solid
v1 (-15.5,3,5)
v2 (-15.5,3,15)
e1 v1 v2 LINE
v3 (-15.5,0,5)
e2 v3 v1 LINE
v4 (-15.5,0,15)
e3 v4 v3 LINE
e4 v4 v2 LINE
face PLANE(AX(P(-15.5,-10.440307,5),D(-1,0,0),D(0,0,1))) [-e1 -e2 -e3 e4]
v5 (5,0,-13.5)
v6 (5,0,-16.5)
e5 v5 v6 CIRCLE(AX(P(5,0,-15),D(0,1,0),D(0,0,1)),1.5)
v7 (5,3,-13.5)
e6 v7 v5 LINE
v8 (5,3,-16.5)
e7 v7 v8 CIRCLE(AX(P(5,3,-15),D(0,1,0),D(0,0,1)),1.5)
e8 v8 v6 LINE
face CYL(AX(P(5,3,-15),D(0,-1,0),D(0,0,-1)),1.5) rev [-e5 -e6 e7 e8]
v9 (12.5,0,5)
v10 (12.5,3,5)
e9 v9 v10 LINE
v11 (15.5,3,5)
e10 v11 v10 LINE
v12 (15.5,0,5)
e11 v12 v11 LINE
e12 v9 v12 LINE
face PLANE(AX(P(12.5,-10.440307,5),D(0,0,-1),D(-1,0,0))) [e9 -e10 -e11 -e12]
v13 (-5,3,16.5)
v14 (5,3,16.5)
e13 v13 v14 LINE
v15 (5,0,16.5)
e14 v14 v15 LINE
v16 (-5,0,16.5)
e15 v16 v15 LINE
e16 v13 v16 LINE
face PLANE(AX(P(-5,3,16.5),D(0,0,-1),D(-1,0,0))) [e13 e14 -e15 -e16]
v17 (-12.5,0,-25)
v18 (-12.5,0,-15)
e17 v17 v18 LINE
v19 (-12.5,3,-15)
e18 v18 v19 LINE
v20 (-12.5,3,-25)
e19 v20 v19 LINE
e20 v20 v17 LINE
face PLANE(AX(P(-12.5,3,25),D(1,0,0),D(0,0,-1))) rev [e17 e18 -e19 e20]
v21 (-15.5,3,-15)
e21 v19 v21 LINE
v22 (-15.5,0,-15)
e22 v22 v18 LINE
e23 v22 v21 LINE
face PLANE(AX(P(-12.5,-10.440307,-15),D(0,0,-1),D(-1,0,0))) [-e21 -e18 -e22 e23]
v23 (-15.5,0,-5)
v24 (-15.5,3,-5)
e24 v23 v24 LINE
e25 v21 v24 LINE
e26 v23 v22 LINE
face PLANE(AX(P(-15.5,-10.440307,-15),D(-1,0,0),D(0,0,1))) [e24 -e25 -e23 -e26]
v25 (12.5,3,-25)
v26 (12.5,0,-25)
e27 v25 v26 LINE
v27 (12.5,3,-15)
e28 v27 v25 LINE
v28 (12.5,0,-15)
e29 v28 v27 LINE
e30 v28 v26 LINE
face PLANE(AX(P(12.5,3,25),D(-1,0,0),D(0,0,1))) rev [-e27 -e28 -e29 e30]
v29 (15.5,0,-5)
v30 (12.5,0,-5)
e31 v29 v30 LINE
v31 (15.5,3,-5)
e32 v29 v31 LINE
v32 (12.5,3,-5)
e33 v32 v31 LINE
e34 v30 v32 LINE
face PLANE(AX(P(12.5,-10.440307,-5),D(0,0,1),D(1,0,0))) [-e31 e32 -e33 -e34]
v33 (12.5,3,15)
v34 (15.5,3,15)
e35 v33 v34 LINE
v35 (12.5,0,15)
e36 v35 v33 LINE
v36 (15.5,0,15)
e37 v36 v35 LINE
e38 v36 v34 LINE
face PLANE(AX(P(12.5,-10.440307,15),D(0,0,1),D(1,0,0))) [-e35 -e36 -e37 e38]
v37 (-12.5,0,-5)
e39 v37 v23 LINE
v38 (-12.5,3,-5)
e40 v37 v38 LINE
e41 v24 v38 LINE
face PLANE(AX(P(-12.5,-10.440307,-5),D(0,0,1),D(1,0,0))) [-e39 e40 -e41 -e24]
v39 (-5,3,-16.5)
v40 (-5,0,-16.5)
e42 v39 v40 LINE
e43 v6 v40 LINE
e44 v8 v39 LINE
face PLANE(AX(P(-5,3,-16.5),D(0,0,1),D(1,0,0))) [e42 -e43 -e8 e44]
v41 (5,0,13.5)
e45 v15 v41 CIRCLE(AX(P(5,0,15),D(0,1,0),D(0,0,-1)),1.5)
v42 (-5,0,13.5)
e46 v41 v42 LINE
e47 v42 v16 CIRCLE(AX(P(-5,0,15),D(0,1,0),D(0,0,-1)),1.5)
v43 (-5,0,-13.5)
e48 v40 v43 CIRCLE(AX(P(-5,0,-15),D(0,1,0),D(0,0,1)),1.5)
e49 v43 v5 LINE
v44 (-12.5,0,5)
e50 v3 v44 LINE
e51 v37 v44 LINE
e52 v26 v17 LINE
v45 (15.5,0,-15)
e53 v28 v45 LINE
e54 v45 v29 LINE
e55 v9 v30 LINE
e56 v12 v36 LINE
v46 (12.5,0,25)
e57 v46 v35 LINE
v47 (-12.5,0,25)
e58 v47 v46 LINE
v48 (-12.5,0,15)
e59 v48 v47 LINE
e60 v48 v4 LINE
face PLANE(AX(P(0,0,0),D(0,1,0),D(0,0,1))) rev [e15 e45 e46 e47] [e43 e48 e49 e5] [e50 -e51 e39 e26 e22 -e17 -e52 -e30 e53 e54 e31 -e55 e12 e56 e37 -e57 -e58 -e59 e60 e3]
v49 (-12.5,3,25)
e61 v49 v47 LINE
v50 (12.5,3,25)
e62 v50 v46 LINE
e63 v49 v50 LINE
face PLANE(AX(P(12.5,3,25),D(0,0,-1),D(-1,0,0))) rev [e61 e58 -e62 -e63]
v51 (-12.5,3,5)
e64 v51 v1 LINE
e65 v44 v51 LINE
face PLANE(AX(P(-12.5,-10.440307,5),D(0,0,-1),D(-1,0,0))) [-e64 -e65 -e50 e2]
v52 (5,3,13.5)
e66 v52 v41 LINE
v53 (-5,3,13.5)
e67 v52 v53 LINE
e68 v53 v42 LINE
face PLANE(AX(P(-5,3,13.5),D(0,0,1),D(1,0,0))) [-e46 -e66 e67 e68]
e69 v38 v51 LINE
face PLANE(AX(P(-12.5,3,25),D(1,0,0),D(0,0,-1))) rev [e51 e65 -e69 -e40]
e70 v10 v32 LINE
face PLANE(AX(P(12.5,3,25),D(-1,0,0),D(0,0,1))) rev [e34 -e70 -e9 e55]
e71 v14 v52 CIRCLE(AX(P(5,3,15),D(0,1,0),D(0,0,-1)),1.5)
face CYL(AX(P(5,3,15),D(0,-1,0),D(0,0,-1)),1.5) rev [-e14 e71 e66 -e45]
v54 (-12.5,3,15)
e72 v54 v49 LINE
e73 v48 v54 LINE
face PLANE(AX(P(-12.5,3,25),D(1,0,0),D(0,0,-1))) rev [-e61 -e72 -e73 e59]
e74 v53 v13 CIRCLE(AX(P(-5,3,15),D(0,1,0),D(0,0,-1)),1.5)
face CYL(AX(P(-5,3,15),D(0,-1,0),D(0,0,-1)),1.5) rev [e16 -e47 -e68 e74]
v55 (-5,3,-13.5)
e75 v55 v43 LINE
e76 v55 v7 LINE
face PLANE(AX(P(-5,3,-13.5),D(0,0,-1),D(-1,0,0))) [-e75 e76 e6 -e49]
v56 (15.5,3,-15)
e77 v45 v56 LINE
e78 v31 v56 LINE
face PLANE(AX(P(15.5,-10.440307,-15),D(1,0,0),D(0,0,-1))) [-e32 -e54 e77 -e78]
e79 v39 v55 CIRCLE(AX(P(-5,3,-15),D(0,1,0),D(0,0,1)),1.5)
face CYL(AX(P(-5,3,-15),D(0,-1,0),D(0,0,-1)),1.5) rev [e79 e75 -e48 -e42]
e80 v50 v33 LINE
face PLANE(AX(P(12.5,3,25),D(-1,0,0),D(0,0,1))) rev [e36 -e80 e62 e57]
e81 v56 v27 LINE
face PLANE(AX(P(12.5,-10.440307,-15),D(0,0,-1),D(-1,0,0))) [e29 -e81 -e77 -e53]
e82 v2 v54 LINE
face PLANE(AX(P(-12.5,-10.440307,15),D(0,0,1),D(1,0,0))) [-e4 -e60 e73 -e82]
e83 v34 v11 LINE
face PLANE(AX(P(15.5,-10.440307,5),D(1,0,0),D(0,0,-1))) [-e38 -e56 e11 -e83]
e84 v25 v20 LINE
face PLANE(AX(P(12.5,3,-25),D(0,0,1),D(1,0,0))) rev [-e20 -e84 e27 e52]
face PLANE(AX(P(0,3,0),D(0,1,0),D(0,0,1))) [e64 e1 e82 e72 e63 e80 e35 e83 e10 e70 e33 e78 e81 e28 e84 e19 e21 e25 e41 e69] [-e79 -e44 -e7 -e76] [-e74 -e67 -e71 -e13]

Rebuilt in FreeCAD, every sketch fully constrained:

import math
import FreeCAD as App
import Part
import Sketcher

doc = App.newDocument("Part")
body = doc.addObject("PartDesign::Body", "Body")

# Sketch on XZ plane
sketch1 = body.newObject("Sketcher::SketchObject", "Sketch")
sketch1.AttachmentSupport = (doc.getObject("XZ_Plane"), [""])
sketch1.MapMode = "FlatFace"
sketch1.addGeometry(Part.LineSegment(App.Vector(-12.5, -25, 0), App.Vector(-12.5, 25, 0)), False)
sketch1.addGeometry(Part.LineSegment(App.Vector(-12.5, 25, 0), App.Vector(12.5, 25, 0)), False)
sketch1.addGeometry(Part.LineSegment(App.Vector(12.5, 25, 0), App.Vector(12.5, -25, 0)), False)
sketch1.addGeometry(Part.LineSegment(App.Vector(12.5, -25, 0), App.Vector(-12.5, -25, 0)), False)
sketch1.addGeometry(Part.LineSegment(App.Vector(5, 16.5, 0), App.Vector(-5, 16.5, 0)), False)
sketch1.addGeometry(Part.ArcOfCircle(Part.Circle(App.Vector(-5, 15, 0), App.Vector(0, 0, 1), 1.5), math.radians(90), math.radians(270)), False)
sketch1.addGeometry(Part.LineSegment(App.Vector(-5, 13.5, 0), App.Vector(5, 13.5, 0)), False)
sketch1.addGeometry(Part.ArcOfCircle(Part.Circle(App.Vector(5, 15, 0), App.Vector(0, 0, 1), 1.5), math.radians(-90), math.radians(90)), False)
sketch1.addGeometry(Part.ArcOfCircle(Part.Circle(App.Vector(-5, -15, 0), App.Vector(0, 0, 1), 1.5), math.radians(90), math.radians(270)), False)
sketch1.addGeometry(Part.LineSegment(App.Vector(-5, -16.5, 0), App.Vector(5, -16.5, 0)), False)
sketch1.addGeometry(Part.ArcOfCircle(Part.Circle(App.Vector(5, -15, 0), App.Vector(0, 0, 1), 1.5), math.radians(-90), math.radians(90)), False)
sketch1.addGeometry(Part.LineSegment(App.Vector(5, -13.5, 0), App.Vector(-5, -13.5, 0)), False)
sketch1.addConstraint(Sketcher.Constraint("Coincident", 0, 2, 1, 1))
sketch1.addConstraint(Sketcher.Constraint("Coincident", 1, 2, 2, 1))
sketch1.addConstraint(Sketcher.Constraint("Coincident", 2, 2, 3, 1))
sketch1.addConstraint(Sketcher.Constraint("Coincident", 3, 2, 0, 1))
sketch1.addConstraint(Sketcher.Constraint("Tangent", 4, 2, 5, 1))
sketch1.addConstraint(Sketcher.Constraint("Tangent", 5, 2, 6, 1))
sketch1.addConstraint(Sketcher.Constraint("Tangent", 6, 2, 7, 1))
sketch1.addConstraint(Sketcher.Constraint("Tangent", 7, 2, 4, 1))
sketch1.addConstraint(Sketcher.Constraint("Tangent", 8, 2, 9, 1))
sketch1.addConstraint(Sketcher.Constraint("Tangent", 9, 2, 10, 1))
sketch1.addConstraint(Sketcher.Constraint("Tangent", 10, 2, 11, 1))
sketch1.addConstraint(Sketcher.Constraint("Tangent", 11, 2, 8, 1))
sketch1.addConstraint(Sketcher.Constraint("Vertical", 0))
sketch1.addConstraint(Sketcher.Constraint("Horizontal", 1))
sketch1.addConstraint(Sketcher.Constraint("Vertical", 2))
sketch1.addConstraint(Sketcher.Constraint("Horizontal", 3))
sketch1.addConstraint(Sketcher.Constraint("Horizontal", 4))
sketch1.addConstraint(Sketcher.Constraint("Horizontal", 6))
sketch1.addConstraint(Sketcher.Constraint("Horizontal", 9))
sketch1.addConstraint(Sketcher.Constraint("Horizontal", 11))
sketch1.addConstraint(Sketcher.Constraint("Equal", 7, 8))
sketch1.addConstraint(Sketcher.Constraint("Symmetric", 7, 3, 8, 3, -1, 1))
sketch1.addConstraint(Sketcher.Constraint("Symmetric", 0, 2, 2, 2, -1, 1))
sketch1.addConstraint(Sketcher.Constraint("Vertical", 5, 3, 8, 3))
sketch1.addConstraint(Sketcher.Constraint("Vertical", 7, 3, 10, 3))
sketch1.addConstraint(Sketcher.Constraint("Radius", 5, 1.5))
sketch1.addConstraint(Sketcher.Constraint("DistanceX", 1, 1, 1, 2, 25.0))
sketch1.addConstraint(Sketcher.Constraint("DistanceX", 4, 2, 4, 1, 10.0))
sketch1.addConstraint(Sketcher.Constraint("DistanceY", 0, 1, 0, 2, 50.0))
sketch1.addConstraint(Sketcher.Constraint("DistanceY", -1, 1, 5, 3, 15.0))
pad1 = body.newObject("PartDesign::Pad", "Pad")
pad1.Profile = sketch1
pad1.Length = 3
pad1.Reversed = True

# Sketch on XZ plane
sketch2 = body.newObject("Sketcher::SketchObject", "Sketch001")
sketch2.AttachmentSupport = (doc.getObject("XZ_Plane"), [""])
sketch2.MapMode = "FlatFace"
sketch2.AttachmentOffset = App.Placement(App.Vector(0, 0, -3), App.Rotation())
sketch2.addGeometry(Part.LineSegment(App.Vector(12.5, -15, 0), App.Vector(12.5, -5, 0)), False)
sketch2.addGeometry(Part.LineSegment(App.Vector(12.5, -5, 0), App.Vector(15.5, -5, 0)), False)
sketch2.addGeometry(Part.LineSegment(App.Vector(15.5, -5, 0), App.Vector(15.5, -15, 0)), False)
sketch2.addGeometry(Part.LineSegment(App.Vector(15.5, -15, 0), App.Vector(12.5, -15, 0)), False)
sketch2.addGeometry(Part.LineSegment(App.Vector(12.5, 5, 0), App.Vector(12.5, 15, 0)), False)
sketch2.addGeometry(Part.LineSegment(App.Vector(12.5, 15, 0), App.Vector(15.5, 15, 0)), False)
sketch2.addGeometry(Part.LineSegment(App.Vector(15.5, 15, 0), App.Vector(15.5, 5, 0)), False)
sketch2.addGeometry(Part.LineSegment(App.Vector(15.5, 5, 0), App.Vector(12.5, 5, 0)), False)
sketch2.addGeometry(Part.LineSegment(App.Vector(-15.5, 5, 0), App.Vector(-15.5, 15, 0)), False)
sketch2.addGeometry(Part.LineSegment(App.Vector(-15.5, 15, 0), App.Vector(-12.5, 15, 0)), False)
sketch2.addGeometry(Part.LineSegment(App.Vector(-12.5, 15, 0), App.Vector(-12.5, 5, 0)), False)
sketch2.addGeometry(Part.LineSegment(App.Vector(-12.5, 5, 0), App.Vector(-15.5, 5, 0)), False)
sketch2.addGeometry(Part.LineSegment(App.Vector(-15.5, -15, 0), App.Vector(-15.5, -5, 0)), False)
sketch2.addGeometry(Part.LineSegment(App.Vector(-15.5, -5, 0), App.Vector(-12.5, -5, 0)), False)
sketch2.addGeometry(Part.LineSegment(App.Vector(-12.5, -5, 0), App.Vector(-12.5, -15, 0)), False)
sketch2.addGeometry(Part.LineSegment(App.Vector(-12.5, -15, 0), App.Vector(-15.5, -15, 0)), False)
sketch2.addConstraint(Sketcher.Constraint("Coincident", 0, 2, 1, 1))
sketch2.addConstraint(Sketcher.Constraint("Coincident", 1, 2, 2, 1))
sketch2.addConstraint(Sketcher.Constraint("Coincident", 2, 2, 3, 1))
sketch2.addConstraint(Sketcher.Constraint("Coincident", 3, 2, 0, 1))
sketch2.addConstraint(Sketcher.Constraint("Coincident", 4, 2, 5, 1))
sketch2.addConstraint(Sketcher.Constraint("Coincident", 5, 2, 6, 1))
sketch2.addConstraint(Sketcher.Constraint("Coincident", 6, 2, 7, 1))
sketch2.addConstraint(Sketcher.Constraint("Coincident", 7, 2, 4, 1))
sketch2.addConstraint(Sketcher.Constraint("Coincident", 8, 2, 9, 1))
sketch2.addConstraint(Sketcher.Constraint("Coincident", 9, 2, 10, 1))
sketch2.addConstraint(Sketcher.Constraint("Coincident", 10, 2, 11, 1))
sketch2.addConstraint(Sketcher.Constraint("Coincident", 11, 2, 8, 1))
sketch2.addConstraint(Sketcher.Constraint("Coincident", 12, 2, 13, 1))
sketch2.addConstraint(Sketcher.Constraint("Coincident", 13, 2, 14, 1))
sketch2.addConstraint(Sketcher.Constraint("Coincident", 14, 2, 15, 1))
sketch2.addConstraint(Sketcher.Constraint("Coincident", 15, 2, 12, 1))
sketch2.addConstraint(Sketcher.Constraint("Vertical", 0))
sketch2.addConstraint(Sketcher.Constraint("Horizontal", 1))
sketch2.addConstraint(Sketcher.Constraint("Vertical", 2))
sketch2.addConstraint(Sketcher.Constraint("Horizontal", 3))
sketch2.addConstraint(Sketcher.Constraint("Vertical", 4))
sketch2.addConstraint(Sketcher.Constraint("Horizontal", 5))
sketch2.addConstraint(Sketcher.Constraint("Vertical", 6))
sketch2.addConstraint(Sketcher.Constraint("Horizontal", 7))
sketch2.addConstraint(Sketcher.Constraint("Vertical", 8))
sketch2.addConstraint(Sketcher.Constraint("Horizontal", 9))
sketch2.addConstraint(Sketcher.Constraint("Vertical", 10))
sketch2.addConstraint(Sketcher.Constraint("Horizontal", 11))
sketch2.addConstraint(Sketcher.Constraint("Vertical", 12))
sketch2.addConstraint(Sketcher.Constraint("Horizontal", 13))
sketch2.addConstraint(Sketcher.Constraint("Vertical", 14))
sketch2.addConstraint(Sketcher.Constraint("Horizontal", 15))
sketch2.addConstraint(Sketcher.Constraint("Symmetric", 2, 2, 8, 2, -1, 1))
sketch2.addConstraint(Sketcher.Constraint("Symmetric", 0, 2, 10, 2, -1, 1))
sketch2.addConstraint(Sketcher.Constraint("Symmetric", 6, 2, 12, 2, -1, 1))
sketch2.addConstraint(Sketcher.Constraint("Symmetric", 4, 2, 14, 2, -1, 1))
sketch2.addConstraint(Sketcher.Constraint("Symmetric", 5, 2, 8, 2, -2))
sketch2.addConstraint(Sketcher.Constraint("Symmetric", 7, 2, 10, 2, -2))
sketch2.addConstraint(Sketcher.Constraint("DistanceX", 1, 1, 1, 2, 3.0))
sketch2.addConstraint(Sketcher.Constraint("DistanceY", 0, 1, 0, 2, 10.0))
sketch2.addConstraint(Sketcher.Constraint("DistanceY", 0, 2, -1, 1, 5.0))
sketch2.addConstraint(Sketcher.Constraint("DistanceX", 8, 2, 4, 2, 28.0))
pad2 = body.newObject("PartDesign::Pad", "Pad001")
pad2.Profile = sketch2
pad2.Length = 3

doc.recompute()
